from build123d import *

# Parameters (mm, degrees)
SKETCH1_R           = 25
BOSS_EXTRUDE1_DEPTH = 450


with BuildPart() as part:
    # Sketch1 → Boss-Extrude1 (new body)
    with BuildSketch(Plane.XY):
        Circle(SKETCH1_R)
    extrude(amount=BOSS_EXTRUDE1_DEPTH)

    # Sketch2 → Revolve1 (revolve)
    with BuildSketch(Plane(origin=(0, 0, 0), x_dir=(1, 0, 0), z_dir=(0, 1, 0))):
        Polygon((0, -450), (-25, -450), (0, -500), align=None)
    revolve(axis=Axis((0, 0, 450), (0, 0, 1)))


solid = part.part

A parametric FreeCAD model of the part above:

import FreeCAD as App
import Part
import Sketcher

V = App.Vector


def add_polygon(sketch, points):
    """Adds a closed chain of lines whose ends are joined by coincident constraints."""
    first, n = sketch.GeometryCount, len(points)
    for a, b in zip(points, points[1:] + points[:1]):
        sketch.addGeometry(Part.LineSegment(App.Vector(*a, 0), App.Vector(*b, 0)), False)
    for i in range(n):
        sketch.addConstraint(Sketcher.Constraint("Coincident", first + i, 2, first + (i + 1) % n, 1))

doc = App.newDocument("Part")
body = doc.addObject("PartDesign::Body", "Body")

# Sketch on XY plane
sketch1 = doc.addObject("Sketcher::SketchObject", "Sketch")
body.addObject(sketch1)
sketch1.AttachmentSupport = (doc.XY_Plane, [""])
sketch1.MapMode = "FlatFace"
sketch1.addGeometry(Part.Circle(V(0, 0, 0), V(0, 0, 1), 25), False)
sketch1.addConstraint(Sketcher.Constraint("Coincident", 0, 3, -1, 1))
sketch1.addConstraint(Sketcher.Constraint("Diameter", 0, 50.0))
pad1 = doc.addObject("PartDesign::Pad", "Pad")
body.addObject(pad1)
pad1.Profile = sketch1
pad1.Length = 450

# Sketch on XZ plane
sketch2 = doc.addObject("Sketcher::SketchObject", "Sketch001")
body.addObject(sketch2)
sketch2.AttachmentSupport = (doc.XZ_Plane, [""])
sketch2.MapMode = "FlatFace"
add_polygon(sketch2, [(0, 450), (-25, 450), (0, 500)])  # lines 0-2
sketch2.addConstraint(Sketcher.Constraint("Horizontal", 0))
sketch2.addConstraint(Sketcher.Constraint("Vertical", 2))
sketch2.addConstraint(Sketcher.Constraint("PointOnObject", 1, 2, -2))
sketch2.addConstraint(Sketcher.Constraint("DistanceX", 0, 2, 0, 1, 25.0))
sketch2.addConstraint(Sketcher.Constraint("DistanceY", 2, 2, 2, 1, 50.0))
sketch2.addConstraint(Sketcher.Constraint("DistanceY", -1, 1, 0, 2, 450.0))
revolution = doc.addObject("PartDesign::Revolution", "Revolution")
body.addObject(revolution)
revolution.Profile = sketch2
revolution.ReferenceAxis = (sketch2, ["V_Axis"])
revolution.Angle = 360

doc.recompute()
